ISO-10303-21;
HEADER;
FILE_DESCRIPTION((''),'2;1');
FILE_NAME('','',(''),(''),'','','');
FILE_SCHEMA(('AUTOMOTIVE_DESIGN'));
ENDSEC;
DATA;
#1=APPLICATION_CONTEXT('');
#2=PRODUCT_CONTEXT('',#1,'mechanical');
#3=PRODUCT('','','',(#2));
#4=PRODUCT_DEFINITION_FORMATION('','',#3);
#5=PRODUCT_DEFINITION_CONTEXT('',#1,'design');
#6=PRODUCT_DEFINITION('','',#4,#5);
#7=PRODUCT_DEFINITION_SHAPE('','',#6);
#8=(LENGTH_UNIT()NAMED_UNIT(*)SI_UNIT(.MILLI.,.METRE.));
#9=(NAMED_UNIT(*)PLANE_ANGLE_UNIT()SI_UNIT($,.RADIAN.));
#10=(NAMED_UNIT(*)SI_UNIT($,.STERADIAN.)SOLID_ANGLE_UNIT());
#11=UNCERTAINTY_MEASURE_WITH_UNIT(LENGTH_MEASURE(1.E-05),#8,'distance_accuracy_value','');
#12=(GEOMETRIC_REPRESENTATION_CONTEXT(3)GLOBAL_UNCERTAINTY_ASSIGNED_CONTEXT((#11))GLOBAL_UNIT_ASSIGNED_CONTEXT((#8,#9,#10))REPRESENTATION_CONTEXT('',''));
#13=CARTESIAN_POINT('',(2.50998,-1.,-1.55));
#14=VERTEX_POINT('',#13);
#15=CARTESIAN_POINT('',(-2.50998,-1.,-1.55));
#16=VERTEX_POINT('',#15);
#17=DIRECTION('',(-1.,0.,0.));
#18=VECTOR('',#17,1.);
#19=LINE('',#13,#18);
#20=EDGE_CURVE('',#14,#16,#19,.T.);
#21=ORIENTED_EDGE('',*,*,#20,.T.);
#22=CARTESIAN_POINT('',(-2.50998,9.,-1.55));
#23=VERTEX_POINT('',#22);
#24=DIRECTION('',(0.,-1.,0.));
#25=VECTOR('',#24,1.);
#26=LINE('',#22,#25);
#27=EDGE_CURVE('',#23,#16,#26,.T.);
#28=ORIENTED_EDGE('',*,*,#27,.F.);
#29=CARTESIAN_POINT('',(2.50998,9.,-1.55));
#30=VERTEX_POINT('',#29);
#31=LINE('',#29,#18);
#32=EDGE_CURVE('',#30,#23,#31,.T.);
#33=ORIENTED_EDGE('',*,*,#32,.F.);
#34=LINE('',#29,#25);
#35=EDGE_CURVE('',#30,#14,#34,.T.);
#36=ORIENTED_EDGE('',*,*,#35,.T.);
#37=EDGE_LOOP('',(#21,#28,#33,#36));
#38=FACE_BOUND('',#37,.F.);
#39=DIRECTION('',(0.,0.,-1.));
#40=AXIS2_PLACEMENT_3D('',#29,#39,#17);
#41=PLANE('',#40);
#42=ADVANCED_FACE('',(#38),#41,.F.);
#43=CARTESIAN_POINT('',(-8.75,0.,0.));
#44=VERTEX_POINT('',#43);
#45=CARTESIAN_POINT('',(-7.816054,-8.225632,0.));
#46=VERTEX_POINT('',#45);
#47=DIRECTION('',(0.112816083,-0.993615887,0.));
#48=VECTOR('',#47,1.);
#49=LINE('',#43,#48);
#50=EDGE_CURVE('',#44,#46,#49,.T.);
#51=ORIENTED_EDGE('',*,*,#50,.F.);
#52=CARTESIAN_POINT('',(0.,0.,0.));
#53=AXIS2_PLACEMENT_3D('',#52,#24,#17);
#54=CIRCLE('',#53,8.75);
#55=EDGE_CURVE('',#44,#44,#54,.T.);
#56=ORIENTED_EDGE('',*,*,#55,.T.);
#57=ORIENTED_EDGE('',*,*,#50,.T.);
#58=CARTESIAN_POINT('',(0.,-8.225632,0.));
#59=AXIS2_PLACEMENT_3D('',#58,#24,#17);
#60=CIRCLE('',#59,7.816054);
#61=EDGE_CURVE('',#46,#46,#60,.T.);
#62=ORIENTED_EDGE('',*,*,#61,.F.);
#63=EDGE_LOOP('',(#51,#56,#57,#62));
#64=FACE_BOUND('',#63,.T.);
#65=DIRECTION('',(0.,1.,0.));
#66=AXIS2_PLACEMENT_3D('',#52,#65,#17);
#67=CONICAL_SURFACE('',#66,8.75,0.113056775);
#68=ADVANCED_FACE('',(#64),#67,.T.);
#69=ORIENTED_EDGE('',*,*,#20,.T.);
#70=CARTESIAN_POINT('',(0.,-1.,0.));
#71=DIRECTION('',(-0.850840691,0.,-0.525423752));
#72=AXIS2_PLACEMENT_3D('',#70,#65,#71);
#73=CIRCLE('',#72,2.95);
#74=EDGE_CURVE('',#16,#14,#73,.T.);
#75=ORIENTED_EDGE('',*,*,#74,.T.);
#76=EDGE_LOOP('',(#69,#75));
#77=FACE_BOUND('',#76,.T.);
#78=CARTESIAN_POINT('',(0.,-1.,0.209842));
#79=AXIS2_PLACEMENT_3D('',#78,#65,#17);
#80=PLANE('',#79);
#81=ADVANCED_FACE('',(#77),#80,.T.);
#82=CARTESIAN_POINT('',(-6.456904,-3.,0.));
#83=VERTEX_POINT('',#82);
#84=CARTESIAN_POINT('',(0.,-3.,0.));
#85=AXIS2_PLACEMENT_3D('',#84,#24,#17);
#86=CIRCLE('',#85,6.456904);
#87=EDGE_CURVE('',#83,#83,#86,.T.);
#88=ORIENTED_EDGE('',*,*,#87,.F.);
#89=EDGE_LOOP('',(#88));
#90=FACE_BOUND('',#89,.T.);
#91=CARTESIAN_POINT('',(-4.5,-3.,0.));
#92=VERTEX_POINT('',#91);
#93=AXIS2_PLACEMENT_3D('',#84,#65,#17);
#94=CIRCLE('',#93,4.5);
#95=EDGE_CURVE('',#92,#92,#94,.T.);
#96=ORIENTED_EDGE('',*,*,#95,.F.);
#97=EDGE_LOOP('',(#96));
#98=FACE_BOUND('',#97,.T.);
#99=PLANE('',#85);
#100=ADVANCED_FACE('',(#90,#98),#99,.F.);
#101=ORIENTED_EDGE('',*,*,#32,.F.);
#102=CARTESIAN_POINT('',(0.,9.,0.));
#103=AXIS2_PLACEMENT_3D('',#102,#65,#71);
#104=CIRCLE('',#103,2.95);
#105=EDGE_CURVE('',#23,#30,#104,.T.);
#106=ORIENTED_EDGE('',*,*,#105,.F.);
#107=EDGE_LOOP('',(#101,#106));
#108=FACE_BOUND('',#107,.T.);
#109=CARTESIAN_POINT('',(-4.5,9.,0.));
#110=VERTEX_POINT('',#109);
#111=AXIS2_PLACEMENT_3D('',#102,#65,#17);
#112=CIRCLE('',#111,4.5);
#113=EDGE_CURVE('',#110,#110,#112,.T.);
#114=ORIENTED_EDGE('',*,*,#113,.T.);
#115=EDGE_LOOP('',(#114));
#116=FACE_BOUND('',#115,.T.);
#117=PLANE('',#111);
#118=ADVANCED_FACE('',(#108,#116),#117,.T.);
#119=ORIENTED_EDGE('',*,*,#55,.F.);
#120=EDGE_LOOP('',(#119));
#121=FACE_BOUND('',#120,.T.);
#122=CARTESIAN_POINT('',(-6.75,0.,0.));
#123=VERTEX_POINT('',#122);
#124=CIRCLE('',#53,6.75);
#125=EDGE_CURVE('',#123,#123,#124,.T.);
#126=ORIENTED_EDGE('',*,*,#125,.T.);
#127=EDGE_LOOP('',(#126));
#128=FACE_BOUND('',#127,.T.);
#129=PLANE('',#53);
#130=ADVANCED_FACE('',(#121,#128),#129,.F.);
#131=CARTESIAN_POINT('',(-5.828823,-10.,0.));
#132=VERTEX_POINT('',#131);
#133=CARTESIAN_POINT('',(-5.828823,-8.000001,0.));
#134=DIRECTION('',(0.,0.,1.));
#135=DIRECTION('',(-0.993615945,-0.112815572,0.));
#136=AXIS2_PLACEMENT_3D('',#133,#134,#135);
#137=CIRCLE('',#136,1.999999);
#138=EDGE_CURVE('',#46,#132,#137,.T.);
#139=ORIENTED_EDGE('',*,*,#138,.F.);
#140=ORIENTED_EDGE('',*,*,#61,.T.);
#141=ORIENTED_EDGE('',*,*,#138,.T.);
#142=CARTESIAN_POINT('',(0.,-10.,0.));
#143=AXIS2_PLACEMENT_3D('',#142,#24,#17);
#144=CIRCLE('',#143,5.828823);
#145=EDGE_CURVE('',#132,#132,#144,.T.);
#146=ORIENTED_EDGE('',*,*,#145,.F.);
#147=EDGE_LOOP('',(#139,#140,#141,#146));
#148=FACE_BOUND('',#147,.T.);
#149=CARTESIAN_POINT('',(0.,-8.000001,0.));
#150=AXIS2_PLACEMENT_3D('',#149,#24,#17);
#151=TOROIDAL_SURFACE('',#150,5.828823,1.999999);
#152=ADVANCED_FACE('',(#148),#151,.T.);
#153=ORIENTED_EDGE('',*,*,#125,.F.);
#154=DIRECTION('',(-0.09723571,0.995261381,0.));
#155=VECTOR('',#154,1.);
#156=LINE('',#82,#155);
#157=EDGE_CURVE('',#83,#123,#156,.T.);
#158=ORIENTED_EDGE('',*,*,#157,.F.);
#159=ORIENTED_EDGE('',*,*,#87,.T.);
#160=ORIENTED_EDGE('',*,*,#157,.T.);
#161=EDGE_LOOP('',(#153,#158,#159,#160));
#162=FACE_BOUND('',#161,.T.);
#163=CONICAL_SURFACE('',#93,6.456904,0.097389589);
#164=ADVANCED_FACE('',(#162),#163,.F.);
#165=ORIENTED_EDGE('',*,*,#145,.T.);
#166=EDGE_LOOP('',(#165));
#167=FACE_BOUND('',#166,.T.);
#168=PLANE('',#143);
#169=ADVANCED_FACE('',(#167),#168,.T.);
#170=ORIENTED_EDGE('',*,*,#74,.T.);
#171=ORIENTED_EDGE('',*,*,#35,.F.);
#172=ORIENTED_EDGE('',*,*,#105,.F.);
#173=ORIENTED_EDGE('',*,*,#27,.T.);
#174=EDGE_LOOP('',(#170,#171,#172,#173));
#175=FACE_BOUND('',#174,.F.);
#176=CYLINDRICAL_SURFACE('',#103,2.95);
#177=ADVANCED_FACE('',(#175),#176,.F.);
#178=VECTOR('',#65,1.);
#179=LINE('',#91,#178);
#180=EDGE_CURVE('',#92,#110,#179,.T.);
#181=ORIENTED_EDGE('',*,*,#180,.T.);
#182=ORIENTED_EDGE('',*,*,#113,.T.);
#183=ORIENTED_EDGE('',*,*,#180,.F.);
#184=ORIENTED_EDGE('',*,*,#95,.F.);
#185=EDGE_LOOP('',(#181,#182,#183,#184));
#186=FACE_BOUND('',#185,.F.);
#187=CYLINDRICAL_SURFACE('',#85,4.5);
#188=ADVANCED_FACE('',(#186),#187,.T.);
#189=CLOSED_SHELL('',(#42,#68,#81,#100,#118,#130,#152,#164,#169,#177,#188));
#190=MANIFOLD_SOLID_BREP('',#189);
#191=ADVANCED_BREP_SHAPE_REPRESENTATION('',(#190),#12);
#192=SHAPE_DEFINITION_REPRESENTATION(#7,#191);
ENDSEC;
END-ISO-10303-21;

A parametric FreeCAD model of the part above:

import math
import FreeCAD as App
import Part
import Sketcher
from FreeCAD import Vector
Q = App.Units.Quantity

doc = App.newDocument("Part")
body = doc.addObject("PartDesign::Body", "Body")

# Sketch on XY plane
sketch1 = doc.addObject("Sketcher::SketchObject", "Sketch")
body.addObject(sketch1)
sketch1.AttachmentSupport = (doc.XY_Plane, [""])
sketch1.MapMode = "FlatFace"
sketch1.addGeometry(Part.LineSegment(Vector(-6.5, -3, 0), Vector(-6.8, 0, 0)), False)
sketch1.addGeometry(Part.LineSegment(Vector(-6.8, 0, 0), Vector(-8.8, 0, 0)), False)
sketch1.addGeometry(Part.LineSegment(Vector(-8.8, 0, 0), Vector(-7.8, -8.2, 0)), False)
sketch1.addGeometry(Part.ArcOfCircle(Part.Circle(Vector(-5.8, -8, 0), Vector(0, 0, 1), 2), math.radians(-174), math.radians(-90)), False)
sketch1.addGeometry(Part.LineSegment(Vector(-5.8, -10, 0), Vector(0, -10, 0)), False)
sketch1.addGeometry(Part.LineSegment(Vector(0, -10, 0), Vector(0, -3, 0)), False)
sketch1.addGeometry(Part.LineSegment(Vector(0, -3, 0), Vector(-6.5, -3, 0)), False)
sketch1.addConstraint(Sketcher.Constraint("Coincident", 0, 2, 1, 1))
sketch1.addConstraint(Sketcher.Constraint("Coincident", 1, 2, 2, 1))
sketch1.addConstraint(Sketcher.Constraint("Tangent", 2, 2, 3, 1))
sketch1.addConstraint(Sketcher.Constraint("Tangent", 3, 2, 4, 1))
sketch1.addConstraint(Sketcher.Constraint("Coincident", 4, 2, 5, 1))
sketch1.addConstraint(Sketcher.Constraint("Coincident", 5, 2, 6, 1))
sketch1.addConstraint(Sketcher.Constraint("Coincident", 6, 2, 0, 1))
sketch1.addConstraint(Sketcher.Constraint("Horizontal", 1))
sketch1.addConstraint(Sketcher.Constraint("Horizontal", 4))
sketch1.addConstraint(Sketcher.Constraint("Vertical", 5))
sketch1.addConstraint(Sketcher.Constraint("Horizontal", 6))
sketch1.addConstraint(Sketcher.Constraint("PointOnObject", 0, 2, -1))
sketch1.addConstraint(Sketcher.Constraint("PointOnObject", 4, 2, -2))
sketch1.addConstraint(Sketcher.Constraint("Radius", 3, Q("1.999999 mm")))
sketch1.addConstraint(Sketcher.Constraint("DistanceX", 1, 2, 1, 1, Q("2 mm")))
sketch1.addConstraint(Sketcher.Constraint("DistanceY", 5, 1, 5, 2, Q("7 mm")))
sketch1.addConstraint(Sketcher.Constraint("DistanceY", 3, 3, -1, 1, Q("8.000001 mm")))
sketch1.addConstraint(Sketcher.Constraint("Angle", 0, Q("95.580012 deg")))
sketch1.addConstraint(Sketcher.Constraint("DistanceX", 0, 2, -1, 1, Q("6.75 mm")))
sketch1.addConstraint(Sketcher.Constraint("DistanceX", 4, 1, 4, 2, Q("5.828823 mm")))
revolution = doc.addObject("PartDesign::Revolution", "Revolution")
body.addObject(revolution)
revolution.Profile = sketch1
revolution.ReferenceAxis = (sketch1, ["V_Axis"])
revolution.Angle = 360

# Sketch on XZ plane
sketch2 = doc.addObject("Sketcher::SketchObject", "Sketch001")
body.addObject(sketch2)
sketch2.AttachmentSupport = (doc.XZ_Plane, [""])
sketch2.MapMode = "FlatFace"
sketch2.AttachmentOffset = App.Placement(Vector(0, 0, 3), App.Rotation())
sketch2.addGeometry(Part.Circle(Vector(0, 0, 0), Vector(0, 0, 1), 4.5), False)
sketch2.addConstraint(Sketcher.Constraint("Coincident", 0, 3, -1, 1))
sketch2.addConstraint(Sketcher.Constraint("Diameter", 0, Q("9 mm")))
pad1 = doc.addObject("PartDesign::Pad", "Pad")
body.addObject(pad1)
pad1.Profile = sketch2
pad1.Length = 12
pad1.Reversed = True

# Sketch on XZ plane
sketch3 = doc.addObject("Sketcher::SketchObject", "Sketch002")
body.addObject(sketch3)
sketch3.AttachmentSupport = (doc.XZ_Plane, [""])
sketch3.MapMode = "FlatFace"
sketch3.AttachmentOffset = App.Placement(Vector(0, 0, -9), App.Rotation())
sketch3.addGeometry(Part.LineSegment(Vector(2.5, -1.6, 0), Vector(-2.5, -1.6, 0)), False)
sketch3.addGeometry(Part.ArcOfCircle(Part.Circle(Vector(0, 0, 0), Vector(0, 0, 1), 2.9), math.radians(-32), math.radians(212)), False)
sketch3.addConstraint(Sketcher.Constraint("Coincident", 0, 1, 1, 1))
sketch3.addConstraint(Sketcher.Constraint("Coincident", 1, 2, 0, 2))
sketch3.addConstraint(Sketcher.Constraint("Horizontal", 0))
sketch3.addConstraint(Sketcher.Constraint("Coincident", 1, 3, -1, 1))
sketch3.addConstraint(Sketcher.Constraint("Radius", 1, Q("2.95 mm")))
sketch3.addConstraint(Sketcher.Constraint("DistanceY", 0, 1, -1, 1, Q("1.55 mm")))
pocket1 = doc.addObject("PartDesign::Pocket", "Pocket")
body.addObject(pocket1)
pocket1.Profile = sketch3
pocket1.Length = 10
pocket1.Reversed = True

doc.recompute()
